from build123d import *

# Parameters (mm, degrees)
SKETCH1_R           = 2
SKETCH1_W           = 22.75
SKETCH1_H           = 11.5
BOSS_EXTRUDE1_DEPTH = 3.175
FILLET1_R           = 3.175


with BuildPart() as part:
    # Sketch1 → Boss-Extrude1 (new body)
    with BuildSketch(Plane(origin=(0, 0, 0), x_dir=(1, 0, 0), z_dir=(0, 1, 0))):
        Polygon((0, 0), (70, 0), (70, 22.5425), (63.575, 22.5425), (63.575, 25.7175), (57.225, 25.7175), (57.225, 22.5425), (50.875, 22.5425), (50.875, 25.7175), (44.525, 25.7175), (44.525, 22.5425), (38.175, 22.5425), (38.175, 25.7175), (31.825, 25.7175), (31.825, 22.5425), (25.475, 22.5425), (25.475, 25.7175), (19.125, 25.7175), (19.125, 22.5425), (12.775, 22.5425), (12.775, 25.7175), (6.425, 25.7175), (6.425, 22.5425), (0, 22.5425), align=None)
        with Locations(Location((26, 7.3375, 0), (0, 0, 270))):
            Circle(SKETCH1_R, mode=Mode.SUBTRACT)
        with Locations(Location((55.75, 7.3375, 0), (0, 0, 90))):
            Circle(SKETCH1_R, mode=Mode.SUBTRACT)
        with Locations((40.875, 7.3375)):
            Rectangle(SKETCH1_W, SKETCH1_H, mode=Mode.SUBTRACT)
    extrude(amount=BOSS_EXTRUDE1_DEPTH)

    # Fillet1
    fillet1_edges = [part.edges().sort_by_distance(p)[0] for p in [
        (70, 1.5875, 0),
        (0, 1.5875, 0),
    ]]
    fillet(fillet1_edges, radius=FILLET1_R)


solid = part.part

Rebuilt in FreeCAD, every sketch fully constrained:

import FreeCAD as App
import Part
import Sketcher


def edges_at(feature, points):
    """Names of the edges that pass closest to the given points."""
    edges = feature.Shape.Edges
    near = lambda p: min(range(len(edges)), key=lambda i: edges[i].distToShape(Part.Vertex(*p))[0])
    return sorted({f"Edge{near(p) + 1}" for p in points})


def add_polygon(sketch, points):
    """Adds a closed chain of lines whose ends are joined by coincident constraints."""
    first, n = sketch.GeometryCount, len(points)
    for a, b in zip(points, points[1:] + points[:1]):
        sketch.addGeometry(Part.LineSegment(App.Vector(*a, 0), App.Vector(*b, 0)), False)
    for i in range(n):
        sketch.addConstraint(Sketcher.Constraint("Coincident", first + i, 2, first + (i + 1) % n, 1))

doc = App.newDocument("Part")
body = doc.addObject("PartDesign::Body", "Body")

sketch1 = body.newObject("Sketcher::SketchObject", "Sketch")
sketch1.AttachmentSupport = (doc.getObject("XZ_Plane"), [""])
sketch1.MapMode = "FlatFace"
add_polygon(sketch1, [(0, 0), (70, 0), (70, -22.5), (63.6, -22.5), (63.6, -25.7), (57.2, -25.7), (57.2, -22.5), (50.9, -22.5), (50.9, -25.7), (44.5, -25.7), (44.5, -22.5), (38.2, -22.5), (38.2, -25.7), (31.8, -25.7), (31.8, -22.5), (25.5, -22.5), (25.5, -25.7), (19.1, -25.7), (19.1, -22.5), (12.8, -22.5), (12.8, -25.7), (6.4, -25.7), (6.4, -22.5), (0, -22.5)])
sketch1.addGeometry(Part.Circle(App.Vector(26, -7.3, 0), App.Vector(0, 0, 1), 2), False)
add_polygon(sketch1, [(52.2, -1.6), (29.5, -1.6), (29.5, -13.1), (52.2, -13.1)])
sketch1.addGeometry(Part.Circle(App.Vector(55.8, -7.3, 0), App.Vector(0, 0, 1), 2), False)
sketch1.addConstraint([
    Sketcher.Constraint("Horizontal", 0),
    Sketcher.Constraint("Vertical", 1),
    Sketcher.Constraint("Horizontal", 2),
    Sketcher.Constraint("Vertical", 3),
    Sketcher.Constraint("Horizontal", 4),
    Sketcher.Constraint("Vertical", 5),
    Sketcher.Constraint("Horizontal", 6),
    Sketcher.Constraint("Vertical", 7),
    Sketcher.Constraint("Horizontal", 8),
    Sketcher.Constraint("Vertical", 9),
    Sketcher.Constraint("Horizontal", 10),
    Sketcher.Constraint("Vertical", 11),
    Sketcher.Constraint("Horizontal", 12),
    Sketcher.Constraint("Vertical", 13),
    Sketcher.Constraint("Horizontal", 14),
    Sketcher.Constraint("Vertical", 15),
    Sketcher.Constraint("Horizontal", 16),
    Sketcher.Constraint("Vertical", 17),
    Sketcher.Constraint("Horizontal", 18),
    Sketcher.Constraint("Vertical", 19),
    Sketcher.Constraint("Horizontal", 20),
    Sketcher.Constraint("Vertical", 21),
    Sketcher.Constraint("Horizontal", 22),
    Sketcher.Constraint("Vertical", 23),
    Sketcher.Constraint("Horizontal", 25),
    Sketcher.Constraint("Vertical", 26),
    Sketcher.Constraint("Horizontal", 27),
    Sketcher.Constraint("Vertical", 28),
    Sketcher.Constraint("Coincident", 23, 2, -1, 1),
    Sketcher.Constraint("Equal", 24, 29),
    Sketcher.Constraint("Horizontal", 24, 3, 29, 3),
    Sketcher.Constraint("Horizontal", 2, 2, 5, 2),
    Sketcher.Constraint("Horizontal", 4, 2, 7, 2),
    Sketcher.Constraint("Horizontal", 6, 2, 9, 2),
    Sketcher.Constraint("Horizontal", 8, 2, 11, 2),
    Sketcher.Constraint("Horizontal", 10, 2, 13, 2),
    Sketcher.Constraint("Horizontal", 12, 2, 15, 2),
    Sketcher.Constraint("Horizontal", 14, 2, 17, 2),
    Sketcher.Constraint("Horizontal", 16, 2, 19, 2),
    Sketcher.Constraint("Horizontal", 18, 2, 21, 2),
    Sketcher.Constraint("Equal", 4, 6),
    Sketcher.Constraint("Equal", 6, 8),
    Sketcher.Constraint("Equal", 8, 10),
    Sketcher.Constraint("Equal", 10, 12),
    Sketcher.Constraint("Equal", 12, 14),
    Sketcher.Constraint("Equal", 14, 16),
    Sketcher.Constraint("Equal", 16, 18),
    Sketcher.Constraint("Equal", 18, 20),
    Sketcher.Constraint("Equal", 2, 22),
    Sketcher.Constraint("Diameter", 24, 4.0),
    Sketcher.Constraint("DistanceX", 0, 1, 0, 2, 70.0),
    Sketcher.Constraint("DistanceY", 26, 2, 26, 1, 11.5),
    Sketcher.Constraint("DistanceX", -1, 1, 24, 3, 26.0),
    Sketcher.Constraint("DistanceX", 4, 2, 4, 1, 6.35),
    Sketcher.Constraint("DistanceX", 25, 2, 25, 1, 22.75),
    Sketcher.Constraint("DistanceX", -1, 1, 25, 2, 29.5),
    Sketcher.Constraint("DistanceX", 27, 2, 29, 3, 3.5),
    Sketcher.Constraint("DistanceY", 3, 2, 3, 1, 3.175),
    Sketcher.Constraint("DistanceY", 3, 2, 29, 3, 18.38),
    Sketcher.Constraint("DistanceY", 24, 3, 25, 2, 5.75),
    Sketcher.Constraint("DistanceY", 1, 2, 1, 1, 22.5425),
])
pad1 = body.newObject("PartDesign::Pad", "Pad")
pad1.Profile = sketch1
pad1.Length = 3.175
pad1.Reversed = True
doc.recompute()

fillet = body.newObject("PartDesign::Fillet", "Fillet")
fillet.Base = (pad1, edges_at(pad1, [(70, 1.587, 0), (0, 1.587, 0)]))
fillet.Radius = 3.175

doc.recompute()
